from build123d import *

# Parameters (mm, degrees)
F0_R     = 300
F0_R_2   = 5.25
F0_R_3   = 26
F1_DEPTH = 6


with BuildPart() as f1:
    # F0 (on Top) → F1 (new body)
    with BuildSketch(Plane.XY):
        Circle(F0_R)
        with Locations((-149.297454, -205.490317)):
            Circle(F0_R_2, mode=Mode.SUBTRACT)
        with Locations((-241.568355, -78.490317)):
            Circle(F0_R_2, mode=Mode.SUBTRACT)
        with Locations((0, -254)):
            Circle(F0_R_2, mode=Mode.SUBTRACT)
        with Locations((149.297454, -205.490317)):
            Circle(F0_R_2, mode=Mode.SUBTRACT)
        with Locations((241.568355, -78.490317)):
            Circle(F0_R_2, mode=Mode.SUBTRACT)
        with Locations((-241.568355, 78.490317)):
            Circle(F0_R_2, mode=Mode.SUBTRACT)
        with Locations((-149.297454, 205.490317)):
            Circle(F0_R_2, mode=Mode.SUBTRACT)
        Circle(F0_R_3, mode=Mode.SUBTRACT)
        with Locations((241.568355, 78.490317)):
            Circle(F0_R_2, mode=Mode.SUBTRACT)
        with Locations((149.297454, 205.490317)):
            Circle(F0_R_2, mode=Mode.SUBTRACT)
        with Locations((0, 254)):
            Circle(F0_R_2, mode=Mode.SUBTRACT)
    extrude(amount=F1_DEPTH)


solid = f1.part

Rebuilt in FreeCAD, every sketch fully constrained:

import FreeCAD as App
import Part
import Sketcher

doc = App.newDocument("Part")
body = doc.addObject("PartDesign::Body", "Body")

# Sketch on XY plane
sketch1 = body.newObject("Sketcher::SketchObject", "Sketch")
sketch1.AttachmentSupport = (doc.getObject("XY_Plane"), [""])
sketch1.MapMode = "FlatFace"
sketch1.addGeometry([
    Part.Circle(App.Vector(0, 0, 0), App.Vector(0, 0, 1), 300),  # 0
    Part.Circle(App.Vector(-149.297454, -205.490317, 0), App.Vector(0, 0, 1), 5.25),  # 1
    Part.Circle(App.Vector(-241.568355, -78.490317, 0), App.Vector(0, 0, 1), 5.25),  # 2
    Part.Circle(App.Vector(0, -254, 0), App.Vector(0, 0, 1), 5.25),  # 3
    Part.Circle(App.Vector(149.297454, -205.490317, 0), App.Vector(0, 0, 1), 5.25),  # 4
    Part.Circle(App.Vector(241.568355, -78.490317, 0), App.Vector(0, 0, 1), 5.25),  # 5
    Part.Circle(App.Vector(-241.568355, 78.490317, 0), App.Vector(0, 0, 1), 5.25),  # 6
    Part.Circle(App.Vector(-149.297454, 205.490317, 0), App.Vector(0, 0, 1), 5.25),  # 7
    Part.Circle(App.Vector(0, 0, 0), App.Vector(0, 0, 1), 26),  # 8
    Part.Circle(App.Vector(241.568355, 78.490317, 0), App.Vector(0, 0, 1), 5.25),  # 9
    Part.Circle(App.Vector(0, 254, 0), App.Vector(0, 0, 1), 5.25),  # 10
    Part.Circle(App.Vector(149.297454, 205.490317, 0), App.Vector(0, 0, 1), 5.25),  # 11
], False)
sketch1.addConstraint([
    Sketcher.Constraint("Coincident", 0, 3, -1, 1),
    Sketcher.Constraint("Coincident", 8, 3, -1, 1),
    Sketcher.Constraint("Equal", 1, 2),
    Sketcher.Constraint("Equal", 2, 3),
    Sketcher.Constraint("Equal", 3, 4),
    Sketcher.Constraint("Equal", 4, 5),
    Sketcher.Constraint("Equal", 5, 6),
    Sketcher.Constraint("Equal", 6, 7),
    Sketcher.Constraint("Equal", 7, 9),
    Sketcher.Constraint("Equal", 9, 10),
    Sketcher.Constraint("Equal", 10, 11),
    Sketcher.Constraint("Symmetric", 5, 3, 6, 3, -1, 1),
    Sketcher.Constraint("Symmetric", 4, 3, 7, 3, -1, 1),
    Sketcher.Constraint("Symmetric", 2, 3, 9, 3, -1, 1),
    Sketcher.Constraint("Symmetric", 3, 3, 10, 3, -1, 1),
    Sketcher.Constraint("Symmetric", 1, 3, 11, 3, -1, 1),
    Sketcher.Constraint("Symmetric", 1, 3, 4, 3, -2),
    Sketcher.Constraint("Symmetric", 2, 3, 5, 3, -2),
    Sketcher.Constraint("PointOnObject", 3, 3, -2),
    Sketcher.Constraint("Diameter", 0, 600.0),
    Sketcher.Constraint("Diameter", 8, 52.0),
    Sketcher.Constraint("Diameter", 1, 10.5),
    Sketcher.Constraint("DistanceY", 3, 3, -1, 1, 254.0),
    Sketcher.Constraint("DistanceY", 1, 3, 2, 3, 127.0),
    Sketcher.Constraint("DistanceX", 2, 3, 1, 3, 92.270901),
    Sketcher.Constraint("DistanceX", 2, 3, 4, 3, 390.865809),
    Sketcher.Constraint("DistanceY", 1, 3, -1, 1, 205.490317),
])
pad1 = body.newObject("PartDesign::Pad", "Pad")
pad1.Profile = sketch1
pad1.Length = 6

doc.recompute()
